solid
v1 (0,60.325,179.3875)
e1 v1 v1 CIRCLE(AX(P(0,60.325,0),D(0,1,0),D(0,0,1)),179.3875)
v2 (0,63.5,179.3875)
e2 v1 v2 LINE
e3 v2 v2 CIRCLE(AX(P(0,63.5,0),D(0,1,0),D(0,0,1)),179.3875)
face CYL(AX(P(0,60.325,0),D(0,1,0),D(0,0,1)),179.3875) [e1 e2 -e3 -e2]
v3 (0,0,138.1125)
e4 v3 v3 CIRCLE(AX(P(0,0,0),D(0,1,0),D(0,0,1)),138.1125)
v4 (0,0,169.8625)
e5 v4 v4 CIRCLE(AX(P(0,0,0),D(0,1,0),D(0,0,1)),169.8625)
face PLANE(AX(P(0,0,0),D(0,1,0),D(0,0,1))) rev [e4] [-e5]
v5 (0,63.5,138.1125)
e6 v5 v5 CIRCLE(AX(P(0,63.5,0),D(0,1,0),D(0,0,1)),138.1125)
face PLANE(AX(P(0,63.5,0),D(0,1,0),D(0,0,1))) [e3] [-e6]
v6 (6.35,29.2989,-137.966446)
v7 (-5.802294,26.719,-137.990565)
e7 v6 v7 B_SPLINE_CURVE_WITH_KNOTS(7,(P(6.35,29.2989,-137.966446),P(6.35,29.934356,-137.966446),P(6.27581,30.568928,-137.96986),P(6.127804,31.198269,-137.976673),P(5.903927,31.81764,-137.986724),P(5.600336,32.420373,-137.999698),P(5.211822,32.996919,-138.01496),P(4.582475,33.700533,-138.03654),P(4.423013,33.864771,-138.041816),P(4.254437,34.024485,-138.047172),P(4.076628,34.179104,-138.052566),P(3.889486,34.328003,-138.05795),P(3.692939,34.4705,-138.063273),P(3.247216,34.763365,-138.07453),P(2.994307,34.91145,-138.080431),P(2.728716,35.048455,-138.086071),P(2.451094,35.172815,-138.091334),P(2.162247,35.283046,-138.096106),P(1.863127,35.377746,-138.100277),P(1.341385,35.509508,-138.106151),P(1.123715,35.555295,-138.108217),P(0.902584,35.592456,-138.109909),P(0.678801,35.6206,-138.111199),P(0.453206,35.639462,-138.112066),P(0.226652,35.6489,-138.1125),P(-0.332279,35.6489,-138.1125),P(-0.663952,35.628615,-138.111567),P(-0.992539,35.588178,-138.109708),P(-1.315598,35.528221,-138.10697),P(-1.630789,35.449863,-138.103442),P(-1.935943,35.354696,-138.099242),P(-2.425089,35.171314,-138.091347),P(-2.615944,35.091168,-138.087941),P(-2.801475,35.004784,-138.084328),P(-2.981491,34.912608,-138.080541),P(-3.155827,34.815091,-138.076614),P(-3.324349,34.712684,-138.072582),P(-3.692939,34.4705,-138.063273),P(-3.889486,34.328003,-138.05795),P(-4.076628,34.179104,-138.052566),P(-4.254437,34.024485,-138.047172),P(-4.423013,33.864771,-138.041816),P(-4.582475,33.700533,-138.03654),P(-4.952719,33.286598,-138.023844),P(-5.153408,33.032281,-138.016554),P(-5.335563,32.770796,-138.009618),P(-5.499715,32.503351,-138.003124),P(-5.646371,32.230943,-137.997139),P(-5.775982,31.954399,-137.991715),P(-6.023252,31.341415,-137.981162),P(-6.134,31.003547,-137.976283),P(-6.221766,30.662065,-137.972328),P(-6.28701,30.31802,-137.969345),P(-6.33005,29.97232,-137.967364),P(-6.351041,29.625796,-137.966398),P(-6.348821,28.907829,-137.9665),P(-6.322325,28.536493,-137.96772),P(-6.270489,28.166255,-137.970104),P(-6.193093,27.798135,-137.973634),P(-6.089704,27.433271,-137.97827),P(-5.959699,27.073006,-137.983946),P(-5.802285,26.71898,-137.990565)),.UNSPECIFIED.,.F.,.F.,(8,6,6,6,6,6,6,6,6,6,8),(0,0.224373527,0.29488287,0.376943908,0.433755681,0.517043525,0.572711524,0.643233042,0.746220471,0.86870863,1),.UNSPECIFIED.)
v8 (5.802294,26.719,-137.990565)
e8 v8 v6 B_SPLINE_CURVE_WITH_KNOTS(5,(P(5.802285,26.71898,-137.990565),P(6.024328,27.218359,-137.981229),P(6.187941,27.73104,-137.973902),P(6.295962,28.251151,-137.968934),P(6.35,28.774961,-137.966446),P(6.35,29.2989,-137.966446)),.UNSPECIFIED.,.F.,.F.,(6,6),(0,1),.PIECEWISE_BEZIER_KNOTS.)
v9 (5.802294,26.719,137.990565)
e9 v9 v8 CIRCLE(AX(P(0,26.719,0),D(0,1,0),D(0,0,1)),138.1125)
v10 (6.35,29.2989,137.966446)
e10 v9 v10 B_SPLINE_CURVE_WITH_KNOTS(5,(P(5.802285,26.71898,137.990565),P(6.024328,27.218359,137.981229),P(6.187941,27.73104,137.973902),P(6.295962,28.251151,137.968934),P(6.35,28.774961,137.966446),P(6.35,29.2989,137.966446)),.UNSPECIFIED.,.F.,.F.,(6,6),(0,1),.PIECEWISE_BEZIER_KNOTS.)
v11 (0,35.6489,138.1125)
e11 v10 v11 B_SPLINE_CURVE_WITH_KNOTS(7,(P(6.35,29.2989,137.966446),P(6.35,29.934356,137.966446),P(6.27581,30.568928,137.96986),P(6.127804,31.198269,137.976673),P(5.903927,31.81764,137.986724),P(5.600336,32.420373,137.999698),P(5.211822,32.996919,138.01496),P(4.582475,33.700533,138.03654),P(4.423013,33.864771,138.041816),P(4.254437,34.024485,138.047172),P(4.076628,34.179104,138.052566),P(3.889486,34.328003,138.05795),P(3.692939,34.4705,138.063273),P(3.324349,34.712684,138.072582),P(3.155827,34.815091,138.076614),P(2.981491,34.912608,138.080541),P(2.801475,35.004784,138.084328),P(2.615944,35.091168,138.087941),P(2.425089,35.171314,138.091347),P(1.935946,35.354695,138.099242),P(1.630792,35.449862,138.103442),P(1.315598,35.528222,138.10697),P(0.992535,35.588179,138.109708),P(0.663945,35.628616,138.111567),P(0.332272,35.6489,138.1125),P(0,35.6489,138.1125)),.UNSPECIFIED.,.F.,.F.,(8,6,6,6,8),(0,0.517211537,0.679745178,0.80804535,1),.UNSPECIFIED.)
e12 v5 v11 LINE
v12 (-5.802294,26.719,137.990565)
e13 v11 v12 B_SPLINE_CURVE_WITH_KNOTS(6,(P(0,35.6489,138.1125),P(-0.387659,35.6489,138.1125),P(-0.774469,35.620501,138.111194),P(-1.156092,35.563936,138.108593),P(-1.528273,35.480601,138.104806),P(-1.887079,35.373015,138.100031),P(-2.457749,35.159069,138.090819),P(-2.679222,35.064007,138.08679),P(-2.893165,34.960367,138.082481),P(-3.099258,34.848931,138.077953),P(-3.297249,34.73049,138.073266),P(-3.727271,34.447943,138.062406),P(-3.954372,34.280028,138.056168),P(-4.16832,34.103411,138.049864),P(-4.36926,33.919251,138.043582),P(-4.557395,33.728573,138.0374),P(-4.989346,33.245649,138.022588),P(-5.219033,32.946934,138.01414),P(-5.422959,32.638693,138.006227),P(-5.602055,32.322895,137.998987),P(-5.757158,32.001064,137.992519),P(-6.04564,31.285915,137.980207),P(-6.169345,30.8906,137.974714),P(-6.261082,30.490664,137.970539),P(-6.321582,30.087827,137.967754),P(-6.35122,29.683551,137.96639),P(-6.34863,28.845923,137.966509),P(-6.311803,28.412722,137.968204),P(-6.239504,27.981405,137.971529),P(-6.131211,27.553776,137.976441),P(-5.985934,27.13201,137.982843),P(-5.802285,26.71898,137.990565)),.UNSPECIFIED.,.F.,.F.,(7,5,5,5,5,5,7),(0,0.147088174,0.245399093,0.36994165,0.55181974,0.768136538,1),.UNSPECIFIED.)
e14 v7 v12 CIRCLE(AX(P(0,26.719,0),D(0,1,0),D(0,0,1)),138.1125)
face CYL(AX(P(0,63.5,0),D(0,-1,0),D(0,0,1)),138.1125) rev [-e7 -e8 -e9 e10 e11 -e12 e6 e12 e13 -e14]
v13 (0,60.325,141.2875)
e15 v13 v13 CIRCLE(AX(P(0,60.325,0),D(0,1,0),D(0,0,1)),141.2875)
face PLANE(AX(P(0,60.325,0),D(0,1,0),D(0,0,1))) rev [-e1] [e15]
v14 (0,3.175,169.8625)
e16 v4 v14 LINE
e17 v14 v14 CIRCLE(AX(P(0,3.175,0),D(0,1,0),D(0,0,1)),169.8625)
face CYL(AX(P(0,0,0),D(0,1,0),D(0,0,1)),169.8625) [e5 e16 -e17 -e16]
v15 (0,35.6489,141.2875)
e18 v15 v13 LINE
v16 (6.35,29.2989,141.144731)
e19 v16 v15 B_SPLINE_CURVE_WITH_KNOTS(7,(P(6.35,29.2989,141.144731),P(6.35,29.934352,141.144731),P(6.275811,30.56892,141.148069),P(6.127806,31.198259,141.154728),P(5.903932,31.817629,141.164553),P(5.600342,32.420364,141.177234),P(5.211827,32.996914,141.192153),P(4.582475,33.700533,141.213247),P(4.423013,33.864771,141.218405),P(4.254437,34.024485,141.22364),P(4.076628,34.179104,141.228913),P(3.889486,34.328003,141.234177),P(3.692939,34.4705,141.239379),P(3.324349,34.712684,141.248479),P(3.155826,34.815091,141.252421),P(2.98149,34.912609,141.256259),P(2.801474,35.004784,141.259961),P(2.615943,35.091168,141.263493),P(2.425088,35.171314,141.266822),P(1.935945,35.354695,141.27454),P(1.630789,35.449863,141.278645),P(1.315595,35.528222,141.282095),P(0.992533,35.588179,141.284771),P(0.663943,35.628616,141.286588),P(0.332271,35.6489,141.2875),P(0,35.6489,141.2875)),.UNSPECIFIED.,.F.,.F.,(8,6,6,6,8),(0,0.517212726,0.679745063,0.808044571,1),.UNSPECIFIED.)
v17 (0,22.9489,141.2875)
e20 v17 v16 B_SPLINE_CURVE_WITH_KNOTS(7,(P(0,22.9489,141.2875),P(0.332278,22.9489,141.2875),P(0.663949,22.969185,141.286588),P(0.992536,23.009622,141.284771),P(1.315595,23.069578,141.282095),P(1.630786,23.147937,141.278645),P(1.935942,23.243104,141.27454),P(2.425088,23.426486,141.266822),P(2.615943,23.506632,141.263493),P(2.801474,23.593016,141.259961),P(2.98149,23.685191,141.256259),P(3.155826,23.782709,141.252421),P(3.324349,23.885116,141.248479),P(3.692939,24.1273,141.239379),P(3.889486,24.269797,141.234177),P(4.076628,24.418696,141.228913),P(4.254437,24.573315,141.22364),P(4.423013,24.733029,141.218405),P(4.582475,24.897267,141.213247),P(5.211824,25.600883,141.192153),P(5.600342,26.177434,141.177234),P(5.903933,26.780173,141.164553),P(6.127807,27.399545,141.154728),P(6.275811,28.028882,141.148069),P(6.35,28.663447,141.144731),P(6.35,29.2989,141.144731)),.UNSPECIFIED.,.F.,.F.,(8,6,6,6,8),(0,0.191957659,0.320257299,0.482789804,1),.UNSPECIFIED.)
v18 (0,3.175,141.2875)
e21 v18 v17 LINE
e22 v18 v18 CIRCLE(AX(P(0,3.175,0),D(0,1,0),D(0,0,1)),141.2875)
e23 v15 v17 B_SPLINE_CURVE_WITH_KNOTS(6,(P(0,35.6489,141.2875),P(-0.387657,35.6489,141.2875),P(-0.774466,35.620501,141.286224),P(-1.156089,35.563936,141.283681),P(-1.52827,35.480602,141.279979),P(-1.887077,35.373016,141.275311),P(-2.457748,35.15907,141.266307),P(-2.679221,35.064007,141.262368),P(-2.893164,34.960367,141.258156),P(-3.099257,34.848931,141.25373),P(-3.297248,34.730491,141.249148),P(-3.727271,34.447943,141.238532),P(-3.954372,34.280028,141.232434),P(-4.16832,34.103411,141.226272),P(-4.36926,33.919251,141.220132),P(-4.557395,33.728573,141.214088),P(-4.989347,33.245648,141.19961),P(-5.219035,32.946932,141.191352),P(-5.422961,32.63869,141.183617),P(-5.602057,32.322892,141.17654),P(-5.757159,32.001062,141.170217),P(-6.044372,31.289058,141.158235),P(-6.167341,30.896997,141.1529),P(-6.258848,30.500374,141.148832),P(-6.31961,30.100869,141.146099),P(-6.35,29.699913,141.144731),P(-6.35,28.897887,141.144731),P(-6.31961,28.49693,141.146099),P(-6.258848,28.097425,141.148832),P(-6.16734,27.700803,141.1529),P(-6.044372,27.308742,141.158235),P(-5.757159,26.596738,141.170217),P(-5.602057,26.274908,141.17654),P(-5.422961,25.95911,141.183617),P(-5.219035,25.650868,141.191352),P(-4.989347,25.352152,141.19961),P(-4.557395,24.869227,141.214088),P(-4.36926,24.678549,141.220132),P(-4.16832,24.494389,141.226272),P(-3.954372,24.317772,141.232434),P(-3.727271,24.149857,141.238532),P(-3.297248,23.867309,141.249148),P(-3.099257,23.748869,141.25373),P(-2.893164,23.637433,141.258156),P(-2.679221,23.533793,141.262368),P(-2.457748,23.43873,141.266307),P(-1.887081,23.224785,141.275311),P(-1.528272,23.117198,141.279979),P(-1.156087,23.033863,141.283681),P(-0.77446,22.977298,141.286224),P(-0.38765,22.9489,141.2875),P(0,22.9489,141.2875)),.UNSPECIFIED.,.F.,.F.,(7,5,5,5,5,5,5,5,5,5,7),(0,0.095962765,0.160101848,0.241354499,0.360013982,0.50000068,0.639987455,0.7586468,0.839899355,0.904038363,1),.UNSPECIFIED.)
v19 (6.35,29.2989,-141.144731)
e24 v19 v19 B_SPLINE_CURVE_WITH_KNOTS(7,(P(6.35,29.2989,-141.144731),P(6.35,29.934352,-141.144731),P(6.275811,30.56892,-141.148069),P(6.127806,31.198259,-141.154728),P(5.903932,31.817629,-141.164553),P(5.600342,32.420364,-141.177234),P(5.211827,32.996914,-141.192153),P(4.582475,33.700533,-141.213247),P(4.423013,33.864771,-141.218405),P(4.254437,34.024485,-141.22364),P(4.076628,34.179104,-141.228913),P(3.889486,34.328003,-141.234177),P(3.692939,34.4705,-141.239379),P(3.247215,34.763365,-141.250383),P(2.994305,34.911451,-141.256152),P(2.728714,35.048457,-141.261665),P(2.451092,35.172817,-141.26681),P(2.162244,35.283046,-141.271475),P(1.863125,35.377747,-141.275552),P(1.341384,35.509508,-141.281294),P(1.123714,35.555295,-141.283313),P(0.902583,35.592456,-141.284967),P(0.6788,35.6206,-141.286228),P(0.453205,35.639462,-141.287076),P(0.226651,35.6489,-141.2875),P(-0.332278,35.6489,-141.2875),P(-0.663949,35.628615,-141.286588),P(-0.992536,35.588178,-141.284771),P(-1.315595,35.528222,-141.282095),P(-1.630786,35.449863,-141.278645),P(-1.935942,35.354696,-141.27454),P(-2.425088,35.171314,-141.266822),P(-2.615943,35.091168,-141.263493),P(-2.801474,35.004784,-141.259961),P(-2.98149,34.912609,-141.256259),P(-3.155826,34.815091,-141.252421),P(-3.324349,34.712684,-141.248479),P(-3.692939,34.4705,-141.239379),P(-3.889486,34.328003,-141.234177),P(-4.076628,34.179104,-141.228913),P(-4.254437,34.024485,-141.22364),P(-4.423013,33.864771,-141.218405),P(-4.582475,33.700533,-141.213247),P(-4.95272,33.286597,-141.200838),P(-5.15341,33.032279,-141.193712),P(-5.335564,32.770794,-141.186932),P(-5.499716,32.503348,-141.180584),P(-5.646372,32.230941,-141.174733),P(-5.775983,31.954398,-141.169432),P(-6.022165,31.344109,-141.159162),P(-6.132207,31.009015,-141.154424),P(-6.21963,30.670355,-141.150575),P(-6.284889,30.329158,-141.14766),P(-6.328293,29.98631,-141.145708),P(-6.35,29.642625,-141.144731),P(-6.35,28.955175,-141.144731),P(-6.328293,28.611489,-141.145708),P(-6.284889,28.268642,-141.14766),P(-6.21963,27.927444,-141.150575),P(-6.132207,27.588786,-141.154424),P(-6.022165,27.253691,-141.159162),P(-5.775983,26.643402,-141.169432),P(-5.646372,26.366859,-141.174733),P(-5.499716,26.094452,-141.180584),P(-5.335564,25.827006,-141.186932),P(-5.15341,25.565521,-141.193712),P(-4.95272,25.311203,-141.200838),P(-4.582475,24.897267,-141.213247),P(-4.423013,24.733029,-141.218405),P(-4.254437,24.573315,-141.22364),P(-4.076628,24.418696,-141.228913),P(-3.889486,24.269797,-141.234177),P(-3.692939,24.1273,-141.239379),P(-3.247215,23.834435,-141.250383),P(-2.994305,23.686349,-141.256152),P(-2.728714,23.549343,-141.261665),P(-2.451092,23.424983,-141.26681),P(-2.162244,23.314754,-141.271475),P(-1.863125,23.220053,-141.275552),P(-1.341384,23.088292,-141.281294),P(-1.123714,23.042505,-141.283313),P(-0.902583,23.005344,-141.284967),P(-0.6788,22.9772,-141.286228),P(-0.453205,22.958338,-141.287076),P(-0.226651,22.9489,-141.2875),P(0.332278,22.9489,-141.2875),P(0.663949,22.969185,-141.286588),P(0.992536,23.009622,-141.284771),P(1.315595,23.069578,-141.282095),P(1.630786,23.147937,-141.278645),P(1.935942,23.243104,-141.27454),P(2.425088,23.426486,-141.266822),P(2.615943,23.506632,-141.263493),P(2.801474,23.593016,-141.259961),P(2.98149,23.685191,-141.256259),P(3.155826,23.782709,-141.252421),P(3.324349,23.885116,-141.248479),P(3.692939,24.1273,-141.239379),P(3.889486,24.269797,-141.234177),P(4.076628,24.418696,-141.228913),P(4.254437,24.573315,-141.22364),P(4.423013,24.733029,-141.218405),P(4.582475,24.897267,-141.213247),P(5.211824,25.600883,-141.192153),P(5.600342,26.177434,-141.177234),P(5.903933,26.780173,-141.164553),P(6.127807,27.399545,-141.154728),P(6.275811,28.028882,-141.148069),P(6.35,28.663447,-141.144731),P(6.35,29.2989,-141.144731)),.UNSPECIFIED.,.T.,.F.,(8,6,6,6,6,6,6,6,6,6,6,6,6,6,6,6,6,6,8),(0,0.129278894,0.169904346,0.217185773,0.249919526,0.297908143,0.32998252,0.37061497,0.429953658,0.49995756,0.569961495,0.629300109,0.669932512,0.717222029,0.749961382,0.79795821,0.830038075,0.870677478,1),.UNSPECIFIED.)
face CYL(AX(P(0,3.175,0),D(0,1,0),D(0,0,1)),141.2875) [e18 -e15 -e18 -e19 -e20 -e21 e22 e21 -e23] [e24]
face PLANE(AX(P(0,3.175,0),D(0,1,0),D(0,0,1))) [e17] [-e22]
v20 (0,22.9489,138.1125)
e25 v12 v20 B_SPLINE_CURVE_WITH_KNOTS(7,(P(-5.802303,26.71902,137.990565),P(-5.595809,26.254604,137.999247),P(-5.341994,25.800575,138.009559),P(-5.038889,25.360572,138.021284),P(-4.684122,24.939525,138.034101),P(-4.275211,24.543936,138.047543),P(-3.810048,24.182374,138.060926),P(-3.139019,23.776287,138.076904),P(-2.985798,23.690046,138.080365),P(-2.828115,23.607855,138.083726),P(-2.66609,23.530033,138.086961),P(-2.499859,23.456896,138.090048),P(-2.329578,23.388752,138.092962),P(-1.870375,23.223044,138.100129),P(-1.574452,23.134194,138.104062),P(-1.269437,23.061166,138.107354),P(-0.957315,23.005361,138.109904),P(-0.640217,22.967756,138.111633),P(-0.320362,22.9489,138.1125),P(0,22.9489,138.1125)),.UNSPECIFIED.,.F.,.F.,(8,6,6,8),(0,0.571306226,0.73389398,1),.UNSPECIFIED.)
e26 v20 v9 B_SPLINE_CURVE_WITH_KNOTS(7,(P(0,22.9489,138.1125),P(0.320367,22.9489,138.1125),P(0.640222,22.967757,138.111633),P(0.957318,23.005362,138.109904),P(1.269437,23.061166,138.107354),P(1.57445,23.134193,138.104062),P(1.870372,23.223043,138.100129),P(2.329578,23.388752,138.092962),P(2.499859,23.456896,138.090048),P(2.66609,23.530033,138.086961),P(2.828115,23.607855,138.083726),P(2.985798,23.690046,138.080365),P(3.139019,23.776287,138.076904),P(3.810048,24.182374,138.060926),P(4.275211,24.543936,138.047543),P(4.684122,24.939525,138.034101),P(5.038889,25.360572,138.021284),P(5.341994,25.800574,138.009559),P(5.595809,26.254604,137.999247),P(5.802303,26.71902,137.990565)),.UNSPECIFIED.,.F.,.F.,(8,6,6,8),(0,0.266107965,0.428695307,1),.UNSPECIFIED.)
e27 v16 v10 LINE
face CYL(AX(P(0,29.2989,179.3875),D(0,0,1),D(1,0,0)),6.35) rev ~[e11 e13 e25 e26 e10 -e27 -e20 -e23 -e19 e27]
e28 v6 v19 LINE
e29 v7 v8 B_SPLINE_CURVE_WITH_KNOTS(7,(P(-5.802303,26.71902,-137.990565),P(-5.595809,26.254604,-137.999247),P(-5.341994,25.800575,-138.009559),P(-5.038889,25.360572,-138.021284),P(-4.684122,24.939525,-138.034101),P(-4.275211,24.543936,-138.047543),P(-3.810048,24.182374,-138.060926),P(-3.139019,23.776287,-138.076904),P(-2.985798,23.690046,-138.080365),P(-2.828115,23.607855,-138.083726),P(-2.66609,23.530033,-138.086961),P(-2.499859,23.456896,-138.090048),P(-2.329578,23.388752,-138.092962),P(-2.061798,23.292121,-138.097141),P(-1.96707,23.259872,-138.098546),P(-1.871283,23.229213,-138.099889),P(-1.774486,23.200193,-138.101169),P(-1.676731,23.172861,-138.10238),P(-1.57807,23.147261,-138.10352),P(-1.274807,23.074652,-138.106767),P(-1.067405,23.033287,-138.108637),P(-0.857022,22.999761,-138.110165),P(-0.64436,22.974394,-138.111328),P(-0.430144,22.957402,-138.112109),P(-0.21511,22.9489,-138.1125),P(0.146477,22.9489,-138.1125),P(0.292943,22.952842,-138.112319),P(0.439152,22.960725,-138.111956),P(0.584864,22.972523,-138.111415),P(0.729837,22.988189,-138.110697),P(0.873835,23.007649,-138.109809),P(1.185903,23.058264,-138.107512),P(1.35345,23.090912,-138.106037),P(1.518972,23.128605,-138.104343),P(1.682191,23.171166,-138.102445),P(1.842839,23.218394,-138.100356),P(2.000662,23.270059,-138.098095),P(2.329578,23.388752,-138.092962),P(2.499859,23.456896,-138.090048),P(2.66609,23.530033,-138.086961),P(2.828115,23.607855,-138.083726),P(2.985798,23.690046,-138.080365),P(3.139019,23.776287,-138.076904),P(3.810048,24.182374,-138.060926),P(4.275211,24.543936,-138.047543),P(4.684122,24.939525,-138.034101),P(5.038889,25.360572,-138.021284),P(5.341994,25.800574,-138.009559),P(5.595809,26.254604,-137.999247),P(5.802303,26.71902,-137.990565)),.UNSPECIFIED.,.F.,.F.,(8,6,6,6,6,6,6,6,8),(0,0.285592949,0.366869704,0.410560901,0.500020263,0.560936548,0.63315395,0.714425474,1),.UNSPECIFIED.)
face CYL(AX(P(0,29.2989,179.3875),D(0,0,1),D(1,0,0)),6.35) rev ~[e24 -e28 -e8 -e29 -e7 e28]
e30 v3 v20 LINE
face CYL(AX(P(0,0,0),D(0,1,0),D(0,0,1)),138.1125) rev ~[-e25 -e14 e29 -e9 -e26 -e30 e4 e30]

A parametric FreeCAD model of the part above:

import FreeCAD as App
import Part
import Sketcher

V = App.Vector
Q = App.Units.Quantity


def add_polygon(sketch, points):
    """Adds a closed chain of lines whose ends are joined by coincident constraints."""
    first, n = sketch.GeometryCount, len(points)
    for a, b in zip(points, points[1:] + points[:1]):
        sketch.addGeometry(Part.LineSegment(App.Vector(*a, 0), App.Vector(*b, 0)), False)
    for i in range(n):
        sketch.addConstraint(Sketcher.Constraint("Coincident", first + i, 2, first + (i + 1) % n, 1))

doc = App.newDocument("Part")
params = doc.addObject("Spreadsheet::Sheet", "Params")
for row, (alias, value) in enumerate([
    ("sketch1_height", "1.5 in"),
    ("sketch1_width", "2.25 in"),
    ("sketch1_height2", "1.25 in"),
    ("sketch1_width2", "0.125 in"),
    ("revolution_angle", "360 deg"),
    ("sketch2_diameter", "0.5 in"),
], start=1):
    params.set(f"A{row}", alias)
    params.set(f"B{row}", "=" + value)
    params.setAlias(f"B{row}", alias)

body = doc.addObject("PartDesign::Body", "Body")

sketch1 = body.newObject("Sketcher::SketchObject", "Sketch")
sketch1.AttachmentSupport = (doc.getObject("YZ_Plane"), [""])
sketch1.MapMode = "FlatFace"
add_polygon(sketch1, [(0, 169.9), (0, 138.1), (63.5, 138.1), (63.5, 179.4), (60.3, 179.4), (60.3, 141.3), (3.2, 141.3), (3.2, 169.9)])
sketch1.addConstraint(Sketcher.Constraint("Vertical", 0))
sketch1.addConstraint(Sketcher.Constraint("Horizontal", 1))
sketch1.addConstraint(Sketcher.Constraint("Vertical", 2))
sketch1.addConstraint(Sketcher.Constraint("Horizontal", 3))
sketch1.addConstraint(Sketcher.Constraint("Vertical", 4))
sketch1.addConstraint(Sketcher.Constraint("Horizontal", 5))
sketch1.addConstraint(Sketcher.Constraint("Vertical", 6))
sketch1.addConstraint(Sketcher.Constraint("Horizontal", 7))
sketch1.addConstraint(Sketcher.Constraint("PointOnObject", 0, 2, -2))
sketch1.addConstraint(Sketcher.Constraint("Equal", 3, 7))
sketch1.addConstraint(Sketcher.Constraint("DistanceY", 4, 2, 4, 1, Q("1.5 in")))
sketch1.addConstraint(Sketcher.Constraint("DistanceX", 5, 2, 5, 1, Q("2.25 in")))
sketch1.addConstraint(Sketcher.Constraint("DistanceY", 0, 2, 0, 1, Q("1.25 in")))
sketch1.addConstraint(Sketcher.Constraint("DistanceX", 3, 2, 3, 1, Q("0.125 in")))
sketch1.addConstraint(Sketcher.Constraint("DistanceY", -1, 1, 0, 2, Q("5.4375 in")))
sketch1.addConstraint(Sketcher.Constraint("DistanceY", 1, 2, 4, 2, Q("0.125 in")))
sketch1.setExpression("Constraints[18]", "Params.sketch1_height")
sketch1.setExpression("Constraints[19]", "Params.sketch1_width")
sketch1.setExpression("Constraints[20]", "Params.sketch1_height2")
sketch1.setExpression("Constraints[21]", "Params.sketch1_width2")
revolution = body.newObject("PartDesign::Revolution", "Revolution")
revolution.Profile = sketch1
revolution.ReferenceAxis = (sketch1, ["H_Axis"])
revolution.setExpression("Angle", "Params.revolution_angle")

sketch2 = body.newObject("Sketcher::SketchObject", "Sketch001")
sketch2.AttachmentSupport = (doc.getObject("XY_Plane"), [""])
sketch2.MapMode = "FlatFace"
sketch2.AttachmentOffset = App.Placement(V(0, 0, 7.0625 * 25.4), App.Rotation())
sketch2.addGeometry(Part.Circle(V(0, 29, 0), V(0, 0, 1), 6), False)
sketch2.addConstraint(Sketcher.Constraint("PointOnObject", 0, 3, -2))
sketch2.addConstraint(Sketcher.Constraint("Diameter", 0, Q("0.5 in")))
sketch2.addConstraint(Sketcher.Constraint("DistanceY", -1, 1, 0, 3, Q("1.1535 in")))
sketch2.setExpression("Constraints[1]", "Params.sketch2_diameter")
pocket1 = body.newObject("PartDesign::Pocket", "Pocket")
pocket1.Profile = sketch2
pocket1.Type = "ThroughAll"

doc.recompute()
